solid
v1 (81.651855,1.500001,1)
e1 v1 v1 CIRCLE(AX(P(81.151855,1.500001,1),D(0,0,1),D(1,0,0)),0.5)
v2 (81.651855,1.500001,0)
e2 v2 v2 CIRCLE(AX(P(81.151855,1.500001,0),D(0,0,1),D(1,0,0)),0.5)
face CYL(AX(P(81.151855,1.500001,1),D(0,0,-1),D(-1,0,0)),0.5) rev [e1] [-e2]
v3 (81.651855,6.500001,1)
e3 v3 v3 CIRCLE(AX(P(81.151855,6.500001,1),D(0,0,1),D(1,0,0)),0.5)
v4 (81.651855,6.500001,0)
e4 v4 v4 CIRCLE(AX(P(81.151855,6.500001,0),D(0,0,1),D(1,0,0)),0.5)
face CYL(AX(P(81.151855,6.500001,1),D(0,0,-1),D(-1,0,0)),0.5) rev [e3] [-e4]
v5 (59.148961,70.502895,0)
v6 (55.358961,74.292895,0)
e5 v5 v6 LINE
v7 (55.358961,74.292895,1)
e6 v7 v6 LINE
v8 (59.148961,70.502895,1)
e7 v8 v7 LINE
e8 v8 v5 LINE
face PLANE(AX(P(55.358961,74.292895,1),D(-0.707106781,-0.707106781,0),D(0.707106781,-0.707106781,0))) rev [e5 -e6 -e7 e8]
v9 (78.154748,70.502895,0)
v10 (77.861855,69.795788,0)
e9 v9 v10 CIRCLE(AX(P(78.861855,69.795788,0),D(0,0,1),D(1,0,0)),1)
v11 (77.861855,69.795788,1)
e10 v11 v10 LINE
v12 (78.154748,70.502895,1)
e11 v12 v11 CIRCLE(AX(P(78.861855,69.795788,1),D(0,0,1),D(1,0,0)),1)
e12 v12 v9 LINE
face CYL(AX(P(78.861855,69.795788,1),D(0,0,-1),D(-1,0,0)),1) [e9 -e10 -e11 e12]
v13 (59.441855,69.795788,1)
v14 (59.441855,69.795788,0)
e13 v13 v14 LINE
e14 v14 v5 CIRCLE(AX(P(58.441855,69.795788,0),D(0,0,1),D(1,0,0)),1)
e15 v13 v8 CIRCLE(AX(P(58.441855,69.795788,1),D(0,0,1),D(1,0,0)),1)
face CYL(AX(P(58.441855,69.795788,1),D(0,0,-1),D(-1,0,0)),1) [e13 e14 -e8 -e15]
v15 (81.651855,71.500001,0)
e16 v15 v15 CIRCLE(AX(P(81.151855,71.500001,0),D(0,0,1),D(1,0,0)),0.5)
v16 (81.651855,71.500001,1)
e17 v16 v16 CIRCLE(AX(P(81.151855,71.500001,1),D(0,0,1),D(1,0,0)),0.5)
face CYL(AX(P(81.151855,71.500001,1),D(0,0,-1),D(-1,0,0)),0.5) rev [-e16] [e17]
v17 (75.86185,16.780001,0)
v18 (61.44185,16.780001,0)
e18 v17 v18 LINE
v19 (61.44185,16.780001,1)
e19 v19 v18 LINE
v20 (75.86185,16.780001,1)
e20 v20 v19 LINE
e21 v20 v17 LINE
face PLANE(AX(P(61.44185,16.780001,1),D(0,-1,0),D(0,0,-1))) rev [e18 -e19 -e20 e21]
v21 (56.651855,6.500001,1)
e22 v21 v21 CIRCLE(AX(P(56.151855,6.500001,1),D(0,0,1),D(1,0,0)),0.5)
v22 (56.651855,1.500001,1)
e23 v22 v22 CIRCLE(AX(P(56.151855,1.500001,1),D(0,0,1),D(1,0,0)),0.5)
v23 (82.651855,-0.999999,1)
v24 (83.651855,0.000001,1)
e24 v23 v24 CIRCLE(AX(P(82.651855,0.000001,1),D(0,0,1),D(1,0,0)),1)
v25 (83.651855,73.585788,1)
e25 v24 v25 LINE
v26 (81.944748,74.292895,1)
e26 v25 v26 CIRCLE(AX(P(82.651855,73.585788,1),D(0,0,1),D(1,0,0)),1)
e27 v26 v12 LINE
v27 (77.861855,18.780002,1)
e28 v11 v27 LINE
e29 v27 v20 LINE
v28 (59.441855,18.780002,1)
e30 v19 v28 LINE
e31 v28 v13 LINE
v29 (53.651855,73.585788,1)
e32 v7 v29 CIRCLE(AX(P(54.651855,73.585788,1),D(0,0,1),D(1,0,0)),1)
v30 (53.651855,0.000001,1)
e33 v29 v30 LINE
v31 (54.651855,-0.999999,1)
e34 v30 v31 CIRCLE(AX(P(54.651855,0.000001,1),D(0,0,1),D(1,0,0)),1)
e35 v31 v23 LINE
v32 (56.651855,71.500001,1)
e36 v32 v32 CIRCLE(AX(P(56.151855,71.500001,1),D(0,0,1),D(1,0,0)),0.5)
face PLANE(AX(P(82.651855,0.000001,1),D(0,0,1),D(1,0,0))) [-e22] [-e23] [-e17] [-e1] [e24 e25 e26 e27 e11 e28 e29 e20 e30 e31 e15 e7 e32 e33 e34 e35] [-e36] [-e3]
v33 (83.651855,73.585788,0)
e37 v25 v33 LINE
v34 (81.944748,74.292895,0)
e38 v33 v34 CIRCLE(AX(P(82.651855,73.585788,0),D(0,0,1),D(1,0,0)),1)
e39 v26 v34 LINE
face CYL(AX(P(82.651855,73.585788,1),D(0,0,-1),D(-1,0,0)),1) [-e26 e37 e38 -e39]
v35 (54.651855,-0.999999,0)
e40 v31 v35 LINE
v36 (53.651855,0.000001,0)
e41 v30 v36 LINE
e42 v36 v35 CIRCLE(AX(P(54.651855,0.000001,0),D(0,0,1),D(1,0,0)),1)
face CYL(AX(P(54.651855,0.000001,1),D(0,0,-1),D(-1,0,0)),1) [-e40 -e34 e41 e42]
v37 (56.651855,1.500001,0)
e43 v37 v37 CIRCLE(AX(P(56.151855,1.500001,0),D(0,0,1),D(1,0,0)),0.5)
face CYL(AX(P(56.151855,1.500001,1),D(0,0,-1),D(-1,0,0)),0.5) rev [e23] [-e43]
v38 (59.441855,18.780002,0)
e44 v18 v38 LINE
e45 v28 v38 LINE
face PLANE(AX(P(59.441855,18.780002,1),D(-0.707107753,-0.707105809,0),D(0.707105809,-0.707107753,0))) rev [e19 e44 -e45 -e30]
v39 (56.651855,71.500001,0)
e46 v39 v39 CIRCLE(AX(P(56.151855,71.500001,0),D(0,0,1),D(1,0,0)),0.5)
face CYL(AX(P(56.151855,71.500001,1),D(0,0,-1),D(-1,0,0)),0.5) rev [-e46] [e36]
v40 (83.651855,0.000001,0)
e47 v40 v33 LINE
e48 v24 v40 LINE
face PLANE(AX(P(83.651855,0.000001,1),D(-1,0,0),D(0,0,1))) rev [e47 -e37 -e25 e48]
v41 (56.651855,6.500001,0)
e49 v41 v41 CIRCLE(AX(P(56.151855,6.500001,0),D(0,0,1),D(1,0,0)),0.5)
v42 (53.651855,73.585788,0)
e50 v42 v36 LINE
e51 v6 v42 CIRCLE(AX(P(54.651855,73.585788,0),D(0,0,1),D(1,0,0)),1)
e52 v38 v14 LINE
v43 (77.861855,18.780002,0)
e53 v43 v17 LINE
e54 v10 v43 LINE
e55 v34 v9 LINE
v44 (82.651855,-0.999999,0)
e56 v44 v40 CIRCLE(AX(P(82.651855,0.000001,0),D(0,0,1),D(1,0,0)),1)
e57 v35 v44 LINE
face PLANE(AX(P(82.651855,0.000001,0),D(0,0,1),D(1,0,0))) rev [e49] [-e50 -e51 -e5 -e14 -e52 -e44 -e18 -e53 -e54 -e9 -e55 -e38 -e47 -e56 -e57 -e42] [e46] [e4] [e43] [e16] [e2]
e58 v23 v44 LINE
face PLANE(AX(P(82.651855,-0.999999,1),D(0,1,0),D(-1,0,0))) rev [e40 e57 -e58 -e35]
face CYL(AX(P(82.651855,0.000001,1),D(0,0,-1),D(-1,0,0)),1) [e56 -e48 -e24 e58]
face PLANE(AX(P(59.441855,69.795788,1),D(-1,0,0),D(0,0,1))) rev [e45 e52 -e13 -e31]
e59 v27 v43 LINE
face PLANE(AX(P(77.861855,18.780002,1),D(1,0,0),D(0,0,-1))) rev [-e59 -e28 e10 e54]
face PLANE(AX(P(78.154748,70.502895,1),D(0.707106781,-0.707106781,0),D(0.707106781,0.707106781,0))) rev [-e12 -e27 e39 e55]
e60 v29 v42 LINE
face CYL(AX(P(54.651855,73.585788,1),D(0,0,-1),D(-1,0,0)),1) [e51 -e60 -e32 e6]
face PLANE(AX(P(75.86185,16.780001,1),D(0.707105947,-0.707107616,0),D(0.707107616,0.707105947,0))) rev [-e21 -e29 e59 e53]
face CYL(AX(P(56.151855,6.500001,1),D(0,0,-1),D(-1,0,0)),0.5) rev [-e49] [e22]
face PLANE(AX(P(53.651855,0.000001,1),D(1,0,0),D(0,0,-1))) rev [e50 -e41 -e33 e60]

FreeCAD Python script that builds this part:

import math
import FreeCAD as App
import Part
import Sketcher
from FreeCAD import Vector

doc = App.newDocument("Part")
body = doc.addObject("PartDesign::Body", "Body")

sketch1 = body.newObject("Sketcher::SketchObject", "Sketch")
sketch1.AttachmentSupport = (doc.getObject("XY_Plane"), [""])
sketch1.MapMode = "FlatFace"
sketch1.addGeometry(Part.LineSegment(Vector(54.7, -1, 0), Vector(82.7, -1, 0)), False)
sketch1.addGeometry(Part.ArcOfCircle(Part.Circle(Vector(82.7, 0, 0), Vector(0, 0, 1), 1), math.radians(-90), math.radians(0)), False)
sketch1.addGeometry(Part.LineSegment(Vector(83.7, 0, 0), Vector(83.7, 73.6, 0)), False)
sketch1.addGeometry(Part.ArcOfCircle(Part.Circle(Vector(82.7, 73.6, 0), Vector(0, 0, 1), 1), math.radians(0), math.radians(135)), False)
sketch1.addGeometry(Part.LineSegment(Vector(81.9, 74.3, 0), Vector(78.2, 70.5, 0)), False)
sketch1.addGeometry(Part.ArcOfCircle(Part.Circle(Vector(78.9, 69.8, 0), Vector(0, 0, 1), 1), math.radians(135), math.radians(180)), False)
sketch1.addGeometry(Part.LineSegment(Vector(77.9, 69.8, 0), Vector(77.9, 18.8, 0)), False)
sketch1.addGeometry(Part.LineSegment(Vector(77.9, 18.8, 0), Vector(75.9, 16.8, 0)), False)
sketch1.addGeometry(Part.LineSegment(Vector(75.9, 16.8, 0), Vector(61.4, 16.8, 0)), False)
sketch1.addGeometry(Part.LineSegment(Vector(61.4, 16.8, 0), Vector(59.4, 18.8, 0)), False)
sketch1.addGeometry(Part.LineSegment(Vector(59.4, 18.8, 0), Vector(59.4, 69.8, 0)), False)
sketch1.addGeometry(Part.ArcOfCircle(Part.Circle(Vector(58.4, 69.8, 0), Vector(0, 0, 1), 1), math.radians(0), math.radians(45)), False)
sketch1.addGeometry(Part.LineSegment(Vector(59.1, 70.5, 0), Vector(55.4, 74.3, 0)), False)
sketch1.addGeometry(Part.ArcOfCircle(Part.Circle(Vector(54.7, 73.6, 0), Vector(0, 0, 1), 1), math.radians(45), math.radians(180)), False)
sketch1.addGeometry(Part.LineSegment(Vector(53.7, 73.6, 0), Vector(53.7, 0, 0)), False)
sketch1.addGeometry(Part.ArcOfCircle(Part.Circle(Vector(54.7, 0, 0), Vector(0, 0, 1), 1), math.radians(-180), math.radians(-90)), False)
sketch1.addGeometry(Part.Circle(Vector(81.2, 1.5, 0), Vector(0, 0, 1), 0.5), False)
sketch1.addGeometry(Part.Circle(Vector(81.2, 6.5, 0), Vector(0, 0, 1), 0.5), False)
sketch1.addGeometry(Part.Circle(Vector(56.2, 1.5, 0), Vector(0, 0, 1), 0.5), False)
sketch1.addGeometry(Part.Circle(Vector(56.2, 6.5, 0), Vector(0, 0, 1), 0.5), False)
sketch1.addGeometry(Part.Circle(Vector(81.2, 71.5, 0), Vector(0, 0, 1), 0.5), False)
sketch1.addGeometry(Part.Circle(Vector(56.2, 71.5, 0), Vector(0, 0, 1), 0.5), False)
sketch1.addConstraint(Sketcher.Constraint("Tangent", 0, 2, 1, 1))
sketch1.addConstraint(Sketcher.Constraint("Tangent", 1, 2, 2, 1))
sketch1.addConstraint(Sketcher.Constraint("Tangent", 2, 2, 3, 1))
sketch1.addConstraint(Sketcher.Constraint("Tangent", 3, 2, 4, 1))
sketch1.addConstraint(Sketcher.Constraint("Tangent", 4, 2, 5, 1))
sketch1.addConstraint(Sketcher.Constraint("Tangent", 5, 2, 6, 1))
sketch1.addConstraint(Sketcher.Constraint("Coincident", 6, 2, 7, 1))
sketch1.addConstraint(Sketcher.Constraint("Coincident", 7, 2, 8, 1))
sketch1.addConstraint(Sketcher.Constraint("Coincident", 8, 2, 9, 1))
sketch1.addConstraint(Sketcher.Constraint("Coincident", 9, 2, 10, 1))
sketch1.addConstraint(Sketcher.Constraint("Tangent", 10, 2, 11, 1))
sketch1.addConstraint(Sketcher.Constraint("Tangent", 11, 2, 12, 1))
sketch1.addConstraint(Sketcher.Constraint("Tangent", 12, 2, 13, 1))
sketch1.addConstraint(Sketcher.Constraint("Tangent", 13, 2, 14, 1))
sketch1.addConstraint(Sketcher.Constraint("Tangent", 14, 2, 15, 1))
sketch1.addConstraint(Sketcher.Constraint("Tangent", 15, 2, 0, 1))
sketch1.addConstraint(Sketcher.Constraint("Horizontal", 0))
sketch1.addConstraint(Sketcher.Constraint("Vertical", 2))
sketch1.addConstraint(Sketcher.Constraint("Vertical", 6))
sketch1.addConstraint(Sketcher.Constraint("Horizontal", 8))
sketch1.addConstraint(Sketcher.Constraint("Vertical", 10))
sketch1.addConstraint(Sketcher.Constraint("Vertical", 14))
sketch1.addConstraint(Sketcher.Constraint("Equal", 1, 3))
sketch1.addConstraint(Sketcher.Constraint("Equal", 3, 5))
sketch1.addConstraint(Sketcher.Constraint("Equal", 5, 11))
sketch1.addConstraint(Sketcher.Constraint("Equal", 11, 13))
sketch1.addConstraint(Sketcher.Constraint("Equal", 13, 15))
sketch1.addConstraint(Sketcher.Constraint("Equal", 16, 17))
sketch1.addConstraint(Sketcher.Constraint("Equal", 17, 18))
sketch1.addConstraint(Sketcher.Constraint("Equal", 18, 19))
sketch1.addConstraint(Sketcher.Constraint("Equal", 19, 20))
sketch1.addConstraint(Sketcher.Constraint("Equal", 20, 21))
sketch1.addConstraint(Sketcher.Constraint("PointOnObject", 1, 3, -1))
sketch1.addConstraint(Sketcher.Constraint("Parallel", 4, 7))
sketch1.addConstraint(Sketcher.Constraint("Perpendicular", 7, 9))
sketch1.addConstraint(Sketcher.Constraint("Parallel", 9, 12))
sketch1.addConstraint(Sketcher.Constraint("Horizontal", 5, 3, 11, 3))
sketch1.addConstraint(Sketcher.Constraint("Horizontal", 3, 3, 13, 3))
sketch1.addConstraint(Sketcher.Constraint("Horizontal", 16, 3, 18, 3))
sketch1.addConstraint(Sketcher.Constraint("Horizontal", 17, 3, 19, 3))
sketch1.addConstraint(Sketcher.Constraint("Horizontal", 20, 3, 21, 3))
sketch1.addConstraint(Sketcher.Constraint("Horizontal", 6, 2, 9, 2))
sketch1.addConstraint(Sketcher.Constraint("Horizontal", 4, 2, 11, 2))
sketch1.addConstraint(Sketcher.Constraint("Vertical", 16, 3, 17, 3))
sketch1.addConstraint(Sketcher.Constraint("Vertical", 18, 3, 19, 3))
sketch1.addConstraint(Sketcher.Constraint("Vertical", 17, 3, 20, 3))
sketch1.addConstraint(Sketcher.Constraint("Vertical", 19, 3, 21, 3))
sketch1.addConstraint(Sketcher.Constraint("Diameter", 16, 1.0))
sketch1.addConstraint(Sketcher.Constraint("Radius", 1, 1.0))
sketch1.addConstraint(Sketcher.Constraint("DistanceX", 0, 1, 0, 2, 28.0))
sketch1.addConstraint(Sketcher.Constraint("DistanceY", 16, 3, 17, 3, 5.0))
sketch1.addConstraint(Sketcher.Constraint("DistanceX", 18, 3, 16, 3, 25.0))
sketch1.addConstraint(Sketcher.Constraint("DistanceY", 17, 3, 20, 3, 65.0))
sketch1.addConstraint(Sketcher.Constraint("DistanceY", 7, 2, 6, 2, 2.0))
sketch1.addConstraint(Sketcher.Constraint("DistanceX", 8, 2, 8, 1, 14.42))
sketch1.addConstraint(Sketcher.Constraint("DistanceY", -1, 1, 16, 3, 1.500001))
sketch1.addConstraint(Sketcher.Constraint("DistanceX", 16, 3, 1, 3, 1.5))
sketch1.addConstraint(Sketcher.Constraint("DistanceY", -1, 1, 6, 2, 18.780002))
sketch1.addConstraint(Sketcher.Constraint("DistanceY", 2, 1, 2, 2, 73.585786))
sketch1.addConstraint(Sketcher.Constraint("DistanceX", -1, 1, 7, 2, 75.86185))
pad1 = body.newObject("PartDesign::Pad", "Pad")
pad1.Profile = sketch1
pad1.Length = 1

doc.recompute()
